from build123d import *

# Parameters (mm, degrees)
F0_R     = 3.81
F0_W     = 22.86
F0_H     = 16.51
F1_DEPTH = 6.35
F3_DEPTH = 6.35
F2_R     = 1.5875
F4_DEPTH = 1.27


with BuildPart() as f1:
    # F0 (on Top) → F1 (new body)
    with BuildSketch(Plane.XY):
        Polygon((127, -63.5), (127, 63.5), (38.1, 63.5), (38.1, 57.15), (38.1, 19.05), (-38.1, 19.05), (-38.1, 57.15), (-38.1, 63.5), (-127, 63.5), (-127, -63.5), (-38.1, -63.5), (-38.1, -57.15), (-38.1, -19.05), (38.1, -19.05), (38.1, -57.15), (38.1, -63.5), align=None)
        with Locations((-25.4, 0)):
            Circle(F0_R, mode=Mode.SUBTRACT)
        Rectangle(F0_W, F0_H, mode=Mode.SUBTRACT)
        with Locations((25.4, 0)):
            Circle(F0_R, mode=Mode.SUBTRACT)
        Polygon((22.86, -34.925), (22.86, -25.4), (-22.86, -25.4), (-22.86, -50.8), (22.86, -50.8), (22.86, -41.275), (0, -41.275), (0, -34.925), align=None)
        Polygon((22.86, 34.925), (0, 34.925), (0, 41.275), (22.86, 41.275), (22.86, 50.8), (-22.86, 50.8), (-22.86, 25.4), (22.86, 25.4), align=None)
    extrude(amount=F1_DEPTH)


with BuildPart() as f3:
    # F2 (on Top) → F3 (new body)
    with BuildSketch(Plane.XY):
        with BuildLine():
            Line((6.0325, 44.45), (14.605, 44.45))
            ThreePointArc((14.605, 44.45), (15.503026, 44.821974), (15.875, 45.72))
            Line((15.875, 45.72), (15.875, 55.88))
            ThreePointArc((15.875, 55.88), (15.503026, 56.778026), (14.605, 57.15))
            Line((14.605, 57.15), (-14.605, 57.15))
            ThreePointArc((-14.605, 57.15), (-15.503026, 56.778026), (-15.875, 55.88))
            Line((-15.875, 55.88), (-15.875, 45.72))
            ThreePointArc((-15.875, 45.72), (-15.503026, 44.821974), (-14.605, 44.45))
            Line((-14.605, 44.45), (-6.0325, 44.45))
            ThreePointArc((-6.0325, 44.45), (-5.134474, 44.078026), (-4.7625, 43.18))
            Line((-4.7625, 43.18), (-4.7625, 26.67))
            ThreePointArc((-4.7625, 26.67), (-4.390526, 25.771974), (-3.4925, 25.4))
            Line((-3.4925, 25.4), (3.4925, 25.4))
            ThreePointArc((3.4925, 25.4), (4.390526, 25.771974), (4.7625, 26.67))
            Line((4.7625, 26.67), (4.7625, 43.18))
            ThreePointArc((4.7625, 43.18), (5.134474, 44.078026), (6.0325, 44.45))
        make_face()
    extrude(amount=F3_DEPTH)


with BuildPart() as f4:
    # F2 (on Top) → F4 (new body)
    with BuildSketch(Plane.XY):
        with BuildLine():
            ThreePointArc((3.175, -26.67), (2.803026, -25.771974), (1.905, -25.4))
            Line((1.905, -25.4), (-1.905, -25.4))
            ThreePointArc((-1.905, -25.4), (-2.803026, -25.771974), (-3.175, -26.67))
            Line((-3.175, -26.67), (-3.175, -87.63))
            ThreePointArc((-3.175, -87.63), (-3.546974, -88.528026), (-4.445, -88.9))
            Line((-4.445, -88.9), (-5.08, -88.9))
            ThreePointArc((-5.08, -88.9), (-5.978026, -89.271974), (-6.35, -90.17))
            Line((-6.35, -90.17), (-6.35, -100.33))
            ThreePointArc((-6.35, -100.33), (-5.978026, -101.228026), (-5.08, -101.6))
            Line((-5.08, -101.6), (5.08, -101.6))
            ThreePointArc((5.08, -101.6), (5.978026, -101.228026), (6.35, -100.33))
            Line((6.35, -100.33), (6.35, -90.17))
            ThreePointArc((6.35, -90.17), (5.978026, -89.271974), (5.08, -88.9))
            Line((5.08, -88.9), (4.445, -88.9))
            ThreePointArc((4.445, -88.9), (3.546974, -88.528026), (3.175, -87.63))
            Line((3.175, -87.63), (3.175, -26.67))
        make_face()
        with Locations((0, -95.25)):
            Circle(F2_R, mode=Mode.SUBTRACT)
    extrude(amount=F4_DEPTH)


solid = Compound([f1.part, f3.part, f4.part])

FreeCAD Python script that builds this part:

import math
import FreeCAD as App
import Part
import Sketcher
from FreeCAD import Vector
Q = App.Units.Quantity

doc = App.newDocument("Part")
body = doc.addObject("PartDesign::Body", "Body")
body.AllowCompound = True

# Sketch on XY plane
sketch1 = body.newObject("Sketcher::SketchObject", "Sketch")
sketch1.AttachmentSupport = (doc.getObject("XY_Plane"), [""])
sketch1.MapMode = "FlatFace"
sketch1.addGeometry(Part.LineSegment(Vector(127, -63.5, 0), Vector(127, 63.5, 0)), False)
sketch1.addGeometry(Part.LineSegment(Vector(127, 63.5, 0), Vector(38.1, 63.5, 0)), False)
sketch1.addGeometry(Part.LineSegment(Vector(38.1, 63.5, 0), Vector(38.1, 19.1, 0)), False)
sketch1.addGeometry(Part.LineSegment(Vector(38.1, 19.1, 0), Vector(-38.1, 19.1, 0)), False)
sketch1.addGeometry(Part.LineSegment(Vector(-38.1, 19.1, 0), Vector(-38.1, 63.5, 0)), False)
sketch1.addGeometry(Part.LineSegment(Vector(-38.1, 63.5, 0), Vector(-127, 63.5, 0)), False)
sketch1.addGeometry(Part.LineSegment(Vector(-127, 63.5, 0), Vector(-127, -63.5, 0)), False)
sketch1.addGeometry(Part.LineSegment(Vector(-127, -63.5, 0), Vector(-38.1, -63.5, 0)), False)
sketch1.addGeometry(Part.LineSegment(Vector(-38.1, -63.5, 0), Vector(-38.1, -19.1, 0)), False)
sketch1.addGeometry(Part.LineSegment(Vector(-38.1, -19.1, 0), Vector(38.1, -19.1, 0)), False)
sketch1.addGeometry(Part.LineSegment(Vector(38.1, -19.1, 0), Vector(38.1, -63.5, 0)), False)
sketch1.addGeometry(Part.LineSegment(Vector(38.1, -63.5, 0), Vector(127, -63.5, 0)), False)
sketch1.addGeometry(Part.Circle(Vector(-25.4, 0, 0), Vector(0, 0, 1), 3.8), False)
sketch1.addGeometry(Part.LineSegment(Vector(11.4, -8.3, 0), Vector(-11.4, -8.3, 0)), False)
sketch1.addGeometry(Part.LineSegment(Vector(-11.4, -8.3, 0), Vector(-11.4, 8.3, 0)), False)
sketch1.addGeometry(Part.LineSegment(Vector(-11.4, 8.3, 0), Vector(11.4, 8.3, 0)), False)
sketch1.addGeometry(Part.LineSegment(Vector(11.4, 8.3, 0), Vector(11.4, -8.3, 0)), False)
sketch1.addGeometry(Part.Circle(Vector(25.4, 0, 0), Vector(0, 0, 1), 3.8), False)
sketch1.addGeometry(Part.LineSegment(Vector(22.9, -34.9, 0), Vector(22.9, -25.4, 0)), False)
sketch1.addGeometry(Part.LineSegment(Vector(22.9, -25.4, 0), Vector(-22.9, -25.4, 0)), False)
sketch1.addGeometry(Part.LineSegment(Vector(-22.9, -25.4, 0), Vector(-22.9, -50.8, 0)), False)
sketch1.addGeometry(Part.LineSegment(Vector(-22.9, -50.8, 0), Vector(22.9, -50.8, 0)), False)
sketch1.addGeometry(Part.LineSegment(Vector(22.9, -50.8, 0), Vector(22.9, -41.3, 0)), False)
sketch1.addGeometry(Part.LineSegment(Vector(22.9, -41.3, 0), Vector(0, -41.3, 0)), False)
sketch1.addGeometry(Part.LineSegment(Vector(0, -41.3, 0), Vector(0, -34.9, 0)), False)
sketch1.addGeometry(Part.LineSegment(Vector(0, -34.9, 0), Vector(22.9, -34.9, 0)), False)
sketch1.addGeometry(Part.LineSegment(Vector(22.9, 34.9, 0), Vector(0, 34.9, 0)), False)
sketch1.addGeometry(Part.LineSegment(Vector(0, 34.9, 0), Vector(0, 41.3, 0)), False)
sketch1.addGeometry(Part.LineSegment(Vector(0, 41.3, 0), Vector(22.9, 41.3, 0)), False)
sketch1.addGeometry(Part.LineSegment(Vector(22.9, 41.3, 0), Vector(22.9, 50.8, 0)), False)
sketch1.addGeometry(Part.LineSegment(Vector(22.9, 50.8, 0), Vector(-22.9, 50.8, 0)), False)
sketch1.addGeometry(Part.LineSegment(Vector(-22.9, 50.8, 0), Vector(-22.9, 25.4, 0)), False)
sketch1.addGeometry(Part.LineSegment(Vector(-22.9, 25.4, 0), Vector(22.9, 25.4, 0)), False)
sketch1.addGeometry(Part.LineSegment(Vector(22.9, 25.4, 0), Vector(22.9, 34.9, 0)), False)
sketch1.addConstraint(Sketcher.Constraint("Coincident", 0, 2, 1, 1))
sketch1.addConstraint(Sketcher.Constraint("Coincident", 1, 2, 2, 1))
sketch1.addConstraint(Sketcher.Constraint("Coincident", 2, 2, 3, 1))
sketch1.addConstraint(Sketcher.Constraint("Coincident", 3, 2, 4, 1))
sketch1.addConstraint(Sketcher.Constraint("Coincident", 4, 2, 5, 1))
sketch1.addConstraint(Sketcher.Constraint("Coincident", 5, 2, 6, 1))
sketch1.addConstraint(Sketcher.Constraint("Coincident", 6, 2, 7, 1))
sketch1.addConstraint(Sketcher.Constraint("Coincident", 7, 2, 8, 1))
sketch1.addConstraint(Sketcher.Constraint("Coincident", 8, 2, 9, 1))
sketch1.addConstraint(Sketcher.Constraint("Coincident", 9, 2, 10, 1))
sketch1.addConstraint(Sketcher.Constraint("Coincident", 10, 2, 11, 1))
sketch1.addConstraint(Sketcher.Constraint("Coincident", 11, 2, 0, 1))
sketch1.addConstraint(Sketcher.Constraint("Coincident", 13, 2, 14, 1))
sketch1.addConstraint(Sketcher.Constraint("Coincident", 14, 2, 15, 1))
sketch1.addConstraint(Sketcher.Constraint("Coincident", 15, 2, 16, 1))
sketch1.addConstraint(Sketcher.Constraint("Coincident", 16, 2, 13, 1))
sketch1.addConstraint(Sketcher.Constraint("Coincident", 18, 2, 19, 1))
sketch1.addConstraint(Sketcher.Constraint("Coincident", 19, 2, 20, 1))
sketch1.addConstraint(Sketcher.Constraint("Coincident", 20, 2, 21, 1))
sketch1.addConstraint(Sketcher.Constraint("Coincident", 21, 2, 22, 1))
sketch1.addConstraint(Sketcher.Constraint("Coincident", 22, 2, 23, 1))
sketch1.addConstraint(Sketcher.Constraint("Coincident", 23, 2, 24, 1))
sketch1.addConstraint(Sketcher.Constraint("Coincident", 24, 2, 25, 1))
sketch1.addConstraint(Sketcher.Constraint("Coincident", 25, 2, 18, 1))
sketch1.addConstraint(Sketcher.Constraint("Coincident", 26, 2, 27, 1))
sketch1.addConstraint(Sketcher.Constraint("Coincident", 27, 2, 28, 1))
sketch1.addConstraint(Sketcher.Constraint("Coincident", 28, 2, 29, 1))
sketch1.addConstraint(Sketcher.Constraint("Coincident", 29, 2, 30, 1))
sketch1.addConstraint(Sketcher.Constraint("Coincident", 30, 2, 31, 1))
sketch1.addConstraint(Sketcher.Constraint("Coincident", 31, 2, 32, 1))
sketch1.addConstraint(Sketcher.Constraint("Coincident", 32, 2, 33, 1))
sketch1.addConstraint(Sketcher.Constraint("Coincident", 33, 2, 26, 1))
sketch1.addConstraint(Sketcher.Constraint("Vertical", 0))
sketch1.addConstraint(Sketcher.Constraint("Horizontal", 1))
sketch1.addConstraint(Sketcher.Constraint("Vertical", 2))
sketch1.addConstraint(Sketcher.Constraint("Horizontal", 3))
sketch1.addConstraint(Sketcher.Constraint("Vertical", 4))
sketch1.addConstraint(Sketcher.Constraint("Horizontal", 5))
sketch1.addConstraint(Sketcher.Constraint("Vertical", 6))
sketch1.addConstraint(Sketcher.Constraint("Horizontal", 7))
sketch1.addConstraint(Sketcher.Constraint("Vertical", 8))
sketch1.addConstraint(Sketcher.Constraint("Horizontal", 9))
sketch1.addConstraint(Sketcher.Constraint("Vertical", 10))
sketch1.addConstraint(Sketcher.Constraint("Horizontal", 11))
sketch1.addConstraint(Sketcher.Constraint("Horizontal", 13))
sketch1.addConstraint(Sketcher.Constraint("Vertical", 14))
sketch1.addConstraint(Sketcher.Constraint("Horizontal", 15))
sketch1.addConstraint(Sketcher.Constraint("Vertical", 16))
sketch1.addConstraint(Sketcher.Constraint("Vertical", 18))
sketch1.addConstraint(Sketcher.Constraint("Horizontal", 19))
sketch1.addConstraint(Sketcher.Constraint("Vertical", 20))
sketch1.addConstraint(Sketcher.Constraint("Horizontal", 21))
sketch1.addConstraint(Sketcher.Constraint("Vertical", 22))
sketch1.addConstraint(Sketcher.Constraint("Horizontal", 23))
sketch1.addConstraint(Sketcher.Constraint("Vertical", 24))
sketch1.addConstraint(Sketcher.Constraint("Horizontal", 25))
sketch1.addConstraint(Sketcher.Constraint("Horizontal", 26))
sketch1.addConstraint(Sketcher.Constraint("Vertical", 27))
sketch1.addConstraint(Sketcher.Constraint("Horizontal", 28))
sketch1.addConstraint(Sketcher.Constraint("Vertical", 29))
sketch1.addConstraint(Sketcher.Constraint("Horizontal", 30))
sketch1.addConstraint(Sketcher.Constraint("Vertical", 31))
sketch1.addConstraint(Sketcher.Constraint("Horizontal", 32))
sketch1.addConstraint(Sketcher.Constraint("Vertical", 33))
sketch1.addConstraint(Sketcher.Constraint("Equal", 12, 17))
sketch1.addConstraint(Sketcher.Constraint("Symmetric", 12, 3, 17, 3, -1, 1))
sketch1.addConstraint(Sketcher.Constraint("Symmetric", 0, 2, 6, 2, -1, 1))
sketch1.addConstraint(Sketcher.Constraint("Symmetric", 2, 2, 8, 2, -1, 1))
sketch1.addConstraint(Sketcher.Constraint("Symmetric", 4, 2, 10, 2, -1, 1))
sketch1.addConstraint(Sketcher.Constraint("Symmetric", 13, 2, 15, 2, -1, 1))
sketch1.addConstraint(Sketcher.Constraint("Symmetric", 24, 2, 26, 2, -1, 1))
sketch1.addConstraint(Sketcher.Constraint("Symmetric", 20, 2, 29, 2, -1, 1))
sketch1.addConstraint(Sketcher.Constraint("Symmetric", 18, 2, 31, 2, -1, 1))
sketch1.addConstraint(Sketcher.Constraint("Symmetric", 1, 2, 4, 2, -2))
sketch1.addConstraint(Sketcher.Constraint("Symmetric", 23, 2, 27, 2, -1))
sketch1.addConstraint(Sketcher.Constraint("PointOnObject", 12, 3, -1))
sketch1.addConstraint(Sketcher.Constraint("Vertical", 18, 2, 21, 2))
sketch1.addConstraint(Sketcher.Constraint("Vertical", 25, 2, 28, 2))
sketch1.addConstraint(Sketcher.Constraint("Vertical", 29, 2, 32, 2))
sketch1.addConstraint(Sketcher.Constraint("Equal", 15, 23))
sketch1.addConstraint(Sketcher.Constraint("Equal", 18, 22))
sketch1.addConstraint(Sketcher.Constraint("Diameter", 12, Q("0.3 in")))
sketch1.addConstraint(Sketcher.Constraint("DistanceX", 3, 2, 3, 1, Q("3 in")))
sketch1.addConstraint(Sketcher.Constraint("DistanceY", 0, 1, 0, 2, Q("5 in")))
sketch1.addConstraint(Sketcher.Constraint("DistanceY", 20, 2, 20, 1, Q("1 in")))
sketch1.addConstraint(Sketcher.Constraint("DistanceX", 1, 2, 1, 1, Q("3.5 in")))
sketch1.addConstraint(Sketcher.Constraint("DistanceX", 13, 2, 13, 1, Q("0.9 in")))
sketch1.addConstraint(Sketcher.Constraint("DistanceX", 12, 3, -1, 1, Q("1 in")))
sketch1.addConstraint(Sketcher.Constraint("DistanceY", 18, 2, -1, 1, Q("1 in")))
sketch1.addConstraint(Sketcher.Constraint("DistanceY", 2, 2, 2, 1, Q("1.75 in")))
sketch1.addConstraint(Sketcher.Constraint("DistanceY", 14, 1, 14, 2, Q("0.65 in")))
sketch1.addConstraint(Sketcher.Constraint("DistanceY", 24, 1, 24, 2, Q("0.25 in")))
pad1 = body.newObject("PartDesign::Pad", "Pad")
pad1.Profile = sketch1
pad1.Length = Q("0.25 in")
body2 = doc.addObject("PartDesign::Body", "Body001")

# Sketch on XY plane
sketch2 = body2.newObject("Sketcher::SketchObject", "Sketch001")
sketch2.AttachmentSupport = (doc.getObject("XY_Plane001"), [""])
sketch2.MapMode = "FlatFace"
sketch2.addGeometry(Part.LineSegment(Vector(6, 44.5, 0), Vector(14.6, 44.5, 0)), False)
sketch2.addGeometry(Part.ArcOfCircle(Part.Circle(Vector(14.6, 45.7, 0), Vector(0, 0, 1), 1.3), math.radians(-90), math.radians(0)), False)
sketch2.addGeometry(Part.LineSegment(Vector(15.9, 45.7, 0), Vector(15.9, 55.9, 0)), False)
sketch2.addGeometry(Part.ArcOfCircle(Part.Circle(Vector(14.6, 55.9, 0), Vector(0, 0, 1), 1.3), math.radians(0), math.radians(90)), False)
sketch2.addGeometry(Part.LineSegment(Vector(14.6, 57.1, 0), Vector(-14.6, 57.1, 0)), False)
sketch2.addGeometry(Part.ArcOfCircle(Part.Circle(Vector(-14.6, 55.9, 0), Vector(0, 0, 1), 1.3), math.radians(90), math.radians(180)), False)
sketch2.addGeometry(Part.LineSegment(Vector(-15.9, 55.9, 0), Vector(-15.9, 45.7, 0)), False)
sketch2.addGeometry(Part.ArcOfCircle(Part.Circle(Vector(-14.6, 45.7, 0), Vector(0, 0, 1), 1.3), math.radians(180), math.radians(270)), False)
sketch2.addGeometry(Part.LineSegment(Vector(-14.6, 44.5, 0), Vector(-6, 44.5, 0)), False)
sketch2.addGeometry(Part.ArcOfCircle(Part.Circle(Vector(-6, 43.2, 0), Vector(0, 0, 1), 1.3), math.radians(0), math.radians(90)), False)
sketch2.addGeometry(Part.LineSegment(Vector(-4.8, 43.2, 0), Vector(-4.8, 26.7, 0)), False)
sketch2.addGeometry(Part.ArcOfCircle(Part.Circle(Vector(-3.5, 26.7, 0), Vector(0, 0, 1), 1.3), math.radians(180), math.radians(270)), False)
sketch2.addGeometry(Part.LineSegment(Vector(-3.5, 25.4, 0), Vector(3.5, 25.4, 0)), False)
sketch2.addGeometry(Part.ArcOfCircle(Part.Circle(Vector(3.5, 26.7, 0), Vector(0, 0, 1), 1.3), math.radians(-90), math.radians(0)), False)
sketch2.addGeometry(Part.LineSegment(Vector(4.8, 26.7, 0), Vector(4.8, 43.2, 0)), False)
sketch2.addGeometry(Part.ArcOfCircle(Part.Circle(Vector(6, 43.2, 0), Vector(0, 0, 1), 1.3), math.radians(90), math.radians(180)), False)
sketch2.addConstraint(Sketcher.Constraint("Tangent", 0, 2, 1, 1))
sketch2.addConstraint(Sketcher.Constraint("Tangent", 1, 2, 2, 1))
sketch2.addConstraint(Sketcher.Constraint("Tangent", 2, 2, 3, 1))
sketch2.addConstraint(Sketcher.Constraint("Tangent", 3, 2, 4, 1))
sketch2.addConstraint(Sketcher.Constraint("Tangent", 4, 2, 5, 1))
sketch2.addConstraint(Sketcher.Constraint("Tangent", 5, 2, 6, 1))
sketch2.addConstraint(Sketcher.Constraint("Tangent", 6, 2, 7, 1))
sketch2.addConstraint(Sketcher.Constraint("Tangent", 7, 2, 8, 1))
sketch2.addConstraint(Sketcher.Constraint("Tangent", 8, 2, 9, 2))
sketch2.addConstraint(Sketcher.Constraint("Tangent", 9, 1, 10, 1))
sketch2.addConstraint(Sketcher.Constraint("Tangent", 10, 2, 11, 1))
sketch2.addConstraint(Sketcher.Constraint("Tangent", 11, 2, 12, 1))
sketch2.addConstraint(Sketcher.Constraint("Tangent", 12, 2, 13, 1))
sketch2.addConstraint(Sketcher.Constraint("Tangent", 13, 2, 14, 1))
sketch2.addConstraint(Sketcher.Constraint("Tangent", 14, 2, 15, 2))
sketch2.addConstraint(Sketcher.Constraint("Tangent", 15, 1, 0, 1))
sketch2.addConstraint(Sketcher.Constraint("Horizontal", 0))
sketch2.addConstraint(Sketcher.Constraint("Vertical", 2))
sketch2.addConstraint(Sketcher.Constraint("Horizontal", 4))
sketch2.addConstraint(Sketcher.Constraint("Vertical", 6))
sketch2.addConstraint(Sketcher.Constraint("Horizontal", 8))
sketch2.addConstraint(Sketcher.Constraint("Vertical", 10))
sketch2.addConstraint(Sketcher.Constraint("Horizontal", 12))
sketch2.addConstraint(Sketcher.Constraint("Vertical", 14))
sketch2.addConstraint(Sketcher.Constraint("Equal", 1, 3))
sketch2.addConstraint(Sketcher.Constraint("Equal", 3, 5))
sketch2.addConstraint(Sketcher.Constraint("Equal", 5, 7))
sketch2.addConstraint(Sketcher.Constraint("Equal", 7, 9))
sketch2.addConstraint(Sketcher.Constraint("Equal", 9, 11))
sketch2.addConstraint(Sketcher.Constraint("Equal", 11, 13))
sketch2.addConstraint(Sketcher.Constraint("Equal", 13, 15))
sketch2.addConstraint(Sketcher.Constraint("Symmetric", 1, 3, 7, 3, -2))
sketch2.addConstraint(Sketcher.Constraint("Equal", 0, 8))
sketch2.addConstraint(Sketcher.Constraint("Radius", 1, Q("0.0499999 in")))
sketch2.addConstraint(Sketcher.Constraint("DistanceY", 2, 1, 2, 2, Q("0.4 in")))
sketch2.addConstraint(Sketcher.Constraint("DistanceY", -1, 1, 11, 2, Q("1 in")))
sketch2.addConstraint(Sketcher.Constraint("DistanceX", 4, 2, 4, 1, Q("1.15 in")))
sketch2.addConstraint(Sketcher.Constraint("DistanceY", 10, 2, 10, 1, Q("0.65 in")))
sketch2.addConstraint(Sketcher.Constraint("DistanceX", 12, 1, 12, 2, Q("0.275 in")))
pad2 = body2.newObject("PartDesign::Pad", "Pad001")
pad2.Profile = sketch2
pad2.Length = Q("0.25 in")
body3 = doc.addObject("PartDesign::Body", "Body002")

# Sketch on XY plane
sketch3 = body3.newObject("Sketcher::SketchObject", "Sketch002")
sketch3.AttachmentSupport = (doc.getObject("XY_Plane002"), [""])
sketch3.MapMode = "FlatFace"
sketch3.addGeometry(Part.ArcOfCircle(Part.Circle(Vector(1.9, -26.7, 0), Vector(0, 0, 1), 1.3), math.radians(0), math.radians(90)), False)
sketch3.addGeometry(Part.LineSegment(Vector(1.9, -25.4, 0), Vector(-1.9, -25.4, 0)), False)
sketch3.addGeometry(Part.ArcOfCircle(Part.Circle(Vector(-1.9, -26.7, 0), Vector(0, 0, 1), 1.3), math.radians(90), math.radians(180)), False)
sketch3.addGeometry(Part.LineSegment(Vector(-3.2, -26.7, 0), Vector(-3.2, -87.6, 0)), False)
sketch3.addGeometry(Part.ArcOfCircle(Part.Circle(Vector(-4.4, -87.6, 0), Vector(0, 0, 1), 1.3), math.radians(-90), math.radians(0)), False)
sketch3.addGeometry(Part.LineSegment(Vector(-4.4, -88.9, 0), Vector(-5.1, -88.9, 0)), False)
sketch3.addGeometry(Part.ArcOfCircle(Part.Circle(Vector(-5.1, -90.2, 0), Vector(0, 0, 1), 1.3), math.radians(90), math.radians(180)), False)
sketch3.addGeometry(Part.LineSegment(Vector(-6.3, -90.2, 0), Vector(-6.3, -100.3, 0)), False)
sketch3.addGeometry(Part.ArcOfCircle(Part.Circle(Vector(-5.1, -100.3, 0), Vector(0, 0, 1), 1.3), math.radians(180), math.radians(270)), False)
sketch3.addGeometry(Part.LineSegment(Vector(-5.1, -101.6, 0), Vector(5.1, -101.6, 0)), False)
sketch3.addGeometry(Part.ArcOfCircle(Part.Circle(Vector(5.1, -100.3, 0), Vector(0, 0, 1), 1.3), math.radians(-90), math.radians(0)), False)
sketch3.addGeometry(Part.LineSegment(Vector(6.3, -100.3, 0), Vector(6.3, -90.2, 0)), False)
sketch3.addGeometry(Part.ArcOfCircle(Part.Circle(Vector(5.1, -90.2, 0), Vector(0, 0, 1), 1.3), math.radians(0), math.radians(90)), False)
sketch3.addGeometry(Part.LineSegment(Vector(5.1, -88.9, 0), Vector(4.4, -88.9, 0)), False)
sketch3.addGeometry(Part.ArcOfCircle(Part.Circle(Vector(4.4, -87.6, 0), Vector(0, 0, 1), 1.3), math.radians(180), math.radians(270)), False)
sketch3.addGeometry(Part.LineSegment(Vector(3.2, -87.6, 0), Vector(3.2, -26.7, 0)), False)
sketch3.addGeometry(Part.Circle(Vector(0, -95.2, 0), Vector(0, 0, 1), 1.6), False)
sketch3.addConstraint(Sketcher.Constraint("Tangent", 0, 2, 1, 1))
sketch3.addConstraint(Sketcher.Constraint("Tangent", 1, 2, 2, 1))
sketch3.addConstraint(Sketcher.Constraint("Tangent", 2, 2, 3, 1))
sketch3.addConstraint(Sketcher.Constraint("Tangent", 3, 2, 4, 2))
sketch3.addConstraint(Sketcher.Constraint("Tangent", 4, 1, 5, 1))
sketch3.addConstraint(Sketcher.Constraint("Tangent", 5, 2, 6, 1))
sketch3.addConstraint(Sketcher.Constraint("Tangent", 6, 2, 7, 1))
sketch3.addConstraint(Sketcher.Constraint("Tangent", 7, 2, 8, 1))
sketch3.addConstraint(Sketcher.Constraint("Tangent", 8, 2, 9, 1))
sketch3.addConstraint(Sketcher.Constraint("Tangent", 9, 2, 10, 1))
sketch3.addConstraint(Sketcher.Constraint("Tangent", 10, 2, 11, 1))
sketch3.addConstraint(Sketcher.Constraint("Tangent", 11, 2, 12, 1))
sketch3.addConstraint(Sketcher.Constraint("Tangent", 12, 2, 13, 1))
sketch3.addConstraint(Sketcher.Constraint("Tangent", 13, 2, 14, 2))
sketch3.addConstraint(Sketcher.Constraint("Tangent", 14, 1, 15, 1))
sketch3.addConstraint(Sketcher.Constraint("Tangent", 15, 2, 0, 1))
sketch3.addConstraint(Sketcher.Constraint("Horizontal", 1))
sketch3.addConstraint(Sketcher.Constraint("Vertical", 3))
sketch3.addConstraint(Sketcher.Constraint("Horizontal", 5))
sketch3.addConstraint(Sketcher.Constraint("Vertical", 7))
sketch3.addConstraint(Sketcher.Constraint("Horizontal", 9))
sketch3.addConstraint(Sketcher.Constraint("Vertical", 11))
sketch3.addConstraint(Sketcher.Constraint("Horizontal", 13))
sketch3.addConstraint(Sketcher.Constraint("Vertical", 15))
sketch3.addConstraint(Sketcher.Constraint("Equal", 0, 2))
sketch3.addConstraint(Sketcher.Constraint("Equal", 2, 4))
sketch3.addConstraint(Sketcher.Constraint("Equal", 4, 6))
sketch3.addConstraint(Sketcher.Constraint("Equal", 6, 8))
sketch3.addConstraint(Sketcher.Constraint("Equal", 8, 10))
sketch3.addConstraint(Sketcher.Constraint("Equal", 10, 12))
sketch3.addConstraint(Sketcher.Constraint("Equal", 12, 14))
sketch3.addConstraint(Sketcher.Constraint("Symmetric", 6, 3, 12, 3, -2))
sketch3.addConstraint(Sketcher.Constraint("PointOnObject", 16, 3, -2))
sketch3.addConstraint(Sketcher.Constraint("Equal", 5, 13))
sketch3.addConstraint(Sketcher.Constraint("Equal", 9, 7))
sketch3.addConstraint(Sketcher.Constraint("Radius", 0, Q("0.0499999 in")))
sketch3.addConstraint(Sketcher.Constraint("Diameter", 16, Q("0.125 in")))
sketch3.addConstraint(Sketcher.Constraint("DistanceX", 9, 1, 9, 2, Q("0.4 in")))
sketch3.addConstraint(Sketcher.Constraint("DistanceY", 3, 2, 3, 1, Q("2.4 in")))
sketch3.addConstraint(Sketcher.Constraint("DistanceY", 0, 2, -1, 1, Q("1 in")))
sketch3.addConstraint(Sketcher.Constraint("DistanceX", 1, 2, 1, 1, Q("0.15 in")))
sketch3.addConstraint(Sketcher.Constraint("DistanceY", 16, 3, 6, 3, Q("0.2000001 in")))
pad3 = body3.newObject("PartDesign::Pad", "Pad002")
pad3.Profile = sketch3
pad3.Length = Q("0.05 in")

doc.recompute()
